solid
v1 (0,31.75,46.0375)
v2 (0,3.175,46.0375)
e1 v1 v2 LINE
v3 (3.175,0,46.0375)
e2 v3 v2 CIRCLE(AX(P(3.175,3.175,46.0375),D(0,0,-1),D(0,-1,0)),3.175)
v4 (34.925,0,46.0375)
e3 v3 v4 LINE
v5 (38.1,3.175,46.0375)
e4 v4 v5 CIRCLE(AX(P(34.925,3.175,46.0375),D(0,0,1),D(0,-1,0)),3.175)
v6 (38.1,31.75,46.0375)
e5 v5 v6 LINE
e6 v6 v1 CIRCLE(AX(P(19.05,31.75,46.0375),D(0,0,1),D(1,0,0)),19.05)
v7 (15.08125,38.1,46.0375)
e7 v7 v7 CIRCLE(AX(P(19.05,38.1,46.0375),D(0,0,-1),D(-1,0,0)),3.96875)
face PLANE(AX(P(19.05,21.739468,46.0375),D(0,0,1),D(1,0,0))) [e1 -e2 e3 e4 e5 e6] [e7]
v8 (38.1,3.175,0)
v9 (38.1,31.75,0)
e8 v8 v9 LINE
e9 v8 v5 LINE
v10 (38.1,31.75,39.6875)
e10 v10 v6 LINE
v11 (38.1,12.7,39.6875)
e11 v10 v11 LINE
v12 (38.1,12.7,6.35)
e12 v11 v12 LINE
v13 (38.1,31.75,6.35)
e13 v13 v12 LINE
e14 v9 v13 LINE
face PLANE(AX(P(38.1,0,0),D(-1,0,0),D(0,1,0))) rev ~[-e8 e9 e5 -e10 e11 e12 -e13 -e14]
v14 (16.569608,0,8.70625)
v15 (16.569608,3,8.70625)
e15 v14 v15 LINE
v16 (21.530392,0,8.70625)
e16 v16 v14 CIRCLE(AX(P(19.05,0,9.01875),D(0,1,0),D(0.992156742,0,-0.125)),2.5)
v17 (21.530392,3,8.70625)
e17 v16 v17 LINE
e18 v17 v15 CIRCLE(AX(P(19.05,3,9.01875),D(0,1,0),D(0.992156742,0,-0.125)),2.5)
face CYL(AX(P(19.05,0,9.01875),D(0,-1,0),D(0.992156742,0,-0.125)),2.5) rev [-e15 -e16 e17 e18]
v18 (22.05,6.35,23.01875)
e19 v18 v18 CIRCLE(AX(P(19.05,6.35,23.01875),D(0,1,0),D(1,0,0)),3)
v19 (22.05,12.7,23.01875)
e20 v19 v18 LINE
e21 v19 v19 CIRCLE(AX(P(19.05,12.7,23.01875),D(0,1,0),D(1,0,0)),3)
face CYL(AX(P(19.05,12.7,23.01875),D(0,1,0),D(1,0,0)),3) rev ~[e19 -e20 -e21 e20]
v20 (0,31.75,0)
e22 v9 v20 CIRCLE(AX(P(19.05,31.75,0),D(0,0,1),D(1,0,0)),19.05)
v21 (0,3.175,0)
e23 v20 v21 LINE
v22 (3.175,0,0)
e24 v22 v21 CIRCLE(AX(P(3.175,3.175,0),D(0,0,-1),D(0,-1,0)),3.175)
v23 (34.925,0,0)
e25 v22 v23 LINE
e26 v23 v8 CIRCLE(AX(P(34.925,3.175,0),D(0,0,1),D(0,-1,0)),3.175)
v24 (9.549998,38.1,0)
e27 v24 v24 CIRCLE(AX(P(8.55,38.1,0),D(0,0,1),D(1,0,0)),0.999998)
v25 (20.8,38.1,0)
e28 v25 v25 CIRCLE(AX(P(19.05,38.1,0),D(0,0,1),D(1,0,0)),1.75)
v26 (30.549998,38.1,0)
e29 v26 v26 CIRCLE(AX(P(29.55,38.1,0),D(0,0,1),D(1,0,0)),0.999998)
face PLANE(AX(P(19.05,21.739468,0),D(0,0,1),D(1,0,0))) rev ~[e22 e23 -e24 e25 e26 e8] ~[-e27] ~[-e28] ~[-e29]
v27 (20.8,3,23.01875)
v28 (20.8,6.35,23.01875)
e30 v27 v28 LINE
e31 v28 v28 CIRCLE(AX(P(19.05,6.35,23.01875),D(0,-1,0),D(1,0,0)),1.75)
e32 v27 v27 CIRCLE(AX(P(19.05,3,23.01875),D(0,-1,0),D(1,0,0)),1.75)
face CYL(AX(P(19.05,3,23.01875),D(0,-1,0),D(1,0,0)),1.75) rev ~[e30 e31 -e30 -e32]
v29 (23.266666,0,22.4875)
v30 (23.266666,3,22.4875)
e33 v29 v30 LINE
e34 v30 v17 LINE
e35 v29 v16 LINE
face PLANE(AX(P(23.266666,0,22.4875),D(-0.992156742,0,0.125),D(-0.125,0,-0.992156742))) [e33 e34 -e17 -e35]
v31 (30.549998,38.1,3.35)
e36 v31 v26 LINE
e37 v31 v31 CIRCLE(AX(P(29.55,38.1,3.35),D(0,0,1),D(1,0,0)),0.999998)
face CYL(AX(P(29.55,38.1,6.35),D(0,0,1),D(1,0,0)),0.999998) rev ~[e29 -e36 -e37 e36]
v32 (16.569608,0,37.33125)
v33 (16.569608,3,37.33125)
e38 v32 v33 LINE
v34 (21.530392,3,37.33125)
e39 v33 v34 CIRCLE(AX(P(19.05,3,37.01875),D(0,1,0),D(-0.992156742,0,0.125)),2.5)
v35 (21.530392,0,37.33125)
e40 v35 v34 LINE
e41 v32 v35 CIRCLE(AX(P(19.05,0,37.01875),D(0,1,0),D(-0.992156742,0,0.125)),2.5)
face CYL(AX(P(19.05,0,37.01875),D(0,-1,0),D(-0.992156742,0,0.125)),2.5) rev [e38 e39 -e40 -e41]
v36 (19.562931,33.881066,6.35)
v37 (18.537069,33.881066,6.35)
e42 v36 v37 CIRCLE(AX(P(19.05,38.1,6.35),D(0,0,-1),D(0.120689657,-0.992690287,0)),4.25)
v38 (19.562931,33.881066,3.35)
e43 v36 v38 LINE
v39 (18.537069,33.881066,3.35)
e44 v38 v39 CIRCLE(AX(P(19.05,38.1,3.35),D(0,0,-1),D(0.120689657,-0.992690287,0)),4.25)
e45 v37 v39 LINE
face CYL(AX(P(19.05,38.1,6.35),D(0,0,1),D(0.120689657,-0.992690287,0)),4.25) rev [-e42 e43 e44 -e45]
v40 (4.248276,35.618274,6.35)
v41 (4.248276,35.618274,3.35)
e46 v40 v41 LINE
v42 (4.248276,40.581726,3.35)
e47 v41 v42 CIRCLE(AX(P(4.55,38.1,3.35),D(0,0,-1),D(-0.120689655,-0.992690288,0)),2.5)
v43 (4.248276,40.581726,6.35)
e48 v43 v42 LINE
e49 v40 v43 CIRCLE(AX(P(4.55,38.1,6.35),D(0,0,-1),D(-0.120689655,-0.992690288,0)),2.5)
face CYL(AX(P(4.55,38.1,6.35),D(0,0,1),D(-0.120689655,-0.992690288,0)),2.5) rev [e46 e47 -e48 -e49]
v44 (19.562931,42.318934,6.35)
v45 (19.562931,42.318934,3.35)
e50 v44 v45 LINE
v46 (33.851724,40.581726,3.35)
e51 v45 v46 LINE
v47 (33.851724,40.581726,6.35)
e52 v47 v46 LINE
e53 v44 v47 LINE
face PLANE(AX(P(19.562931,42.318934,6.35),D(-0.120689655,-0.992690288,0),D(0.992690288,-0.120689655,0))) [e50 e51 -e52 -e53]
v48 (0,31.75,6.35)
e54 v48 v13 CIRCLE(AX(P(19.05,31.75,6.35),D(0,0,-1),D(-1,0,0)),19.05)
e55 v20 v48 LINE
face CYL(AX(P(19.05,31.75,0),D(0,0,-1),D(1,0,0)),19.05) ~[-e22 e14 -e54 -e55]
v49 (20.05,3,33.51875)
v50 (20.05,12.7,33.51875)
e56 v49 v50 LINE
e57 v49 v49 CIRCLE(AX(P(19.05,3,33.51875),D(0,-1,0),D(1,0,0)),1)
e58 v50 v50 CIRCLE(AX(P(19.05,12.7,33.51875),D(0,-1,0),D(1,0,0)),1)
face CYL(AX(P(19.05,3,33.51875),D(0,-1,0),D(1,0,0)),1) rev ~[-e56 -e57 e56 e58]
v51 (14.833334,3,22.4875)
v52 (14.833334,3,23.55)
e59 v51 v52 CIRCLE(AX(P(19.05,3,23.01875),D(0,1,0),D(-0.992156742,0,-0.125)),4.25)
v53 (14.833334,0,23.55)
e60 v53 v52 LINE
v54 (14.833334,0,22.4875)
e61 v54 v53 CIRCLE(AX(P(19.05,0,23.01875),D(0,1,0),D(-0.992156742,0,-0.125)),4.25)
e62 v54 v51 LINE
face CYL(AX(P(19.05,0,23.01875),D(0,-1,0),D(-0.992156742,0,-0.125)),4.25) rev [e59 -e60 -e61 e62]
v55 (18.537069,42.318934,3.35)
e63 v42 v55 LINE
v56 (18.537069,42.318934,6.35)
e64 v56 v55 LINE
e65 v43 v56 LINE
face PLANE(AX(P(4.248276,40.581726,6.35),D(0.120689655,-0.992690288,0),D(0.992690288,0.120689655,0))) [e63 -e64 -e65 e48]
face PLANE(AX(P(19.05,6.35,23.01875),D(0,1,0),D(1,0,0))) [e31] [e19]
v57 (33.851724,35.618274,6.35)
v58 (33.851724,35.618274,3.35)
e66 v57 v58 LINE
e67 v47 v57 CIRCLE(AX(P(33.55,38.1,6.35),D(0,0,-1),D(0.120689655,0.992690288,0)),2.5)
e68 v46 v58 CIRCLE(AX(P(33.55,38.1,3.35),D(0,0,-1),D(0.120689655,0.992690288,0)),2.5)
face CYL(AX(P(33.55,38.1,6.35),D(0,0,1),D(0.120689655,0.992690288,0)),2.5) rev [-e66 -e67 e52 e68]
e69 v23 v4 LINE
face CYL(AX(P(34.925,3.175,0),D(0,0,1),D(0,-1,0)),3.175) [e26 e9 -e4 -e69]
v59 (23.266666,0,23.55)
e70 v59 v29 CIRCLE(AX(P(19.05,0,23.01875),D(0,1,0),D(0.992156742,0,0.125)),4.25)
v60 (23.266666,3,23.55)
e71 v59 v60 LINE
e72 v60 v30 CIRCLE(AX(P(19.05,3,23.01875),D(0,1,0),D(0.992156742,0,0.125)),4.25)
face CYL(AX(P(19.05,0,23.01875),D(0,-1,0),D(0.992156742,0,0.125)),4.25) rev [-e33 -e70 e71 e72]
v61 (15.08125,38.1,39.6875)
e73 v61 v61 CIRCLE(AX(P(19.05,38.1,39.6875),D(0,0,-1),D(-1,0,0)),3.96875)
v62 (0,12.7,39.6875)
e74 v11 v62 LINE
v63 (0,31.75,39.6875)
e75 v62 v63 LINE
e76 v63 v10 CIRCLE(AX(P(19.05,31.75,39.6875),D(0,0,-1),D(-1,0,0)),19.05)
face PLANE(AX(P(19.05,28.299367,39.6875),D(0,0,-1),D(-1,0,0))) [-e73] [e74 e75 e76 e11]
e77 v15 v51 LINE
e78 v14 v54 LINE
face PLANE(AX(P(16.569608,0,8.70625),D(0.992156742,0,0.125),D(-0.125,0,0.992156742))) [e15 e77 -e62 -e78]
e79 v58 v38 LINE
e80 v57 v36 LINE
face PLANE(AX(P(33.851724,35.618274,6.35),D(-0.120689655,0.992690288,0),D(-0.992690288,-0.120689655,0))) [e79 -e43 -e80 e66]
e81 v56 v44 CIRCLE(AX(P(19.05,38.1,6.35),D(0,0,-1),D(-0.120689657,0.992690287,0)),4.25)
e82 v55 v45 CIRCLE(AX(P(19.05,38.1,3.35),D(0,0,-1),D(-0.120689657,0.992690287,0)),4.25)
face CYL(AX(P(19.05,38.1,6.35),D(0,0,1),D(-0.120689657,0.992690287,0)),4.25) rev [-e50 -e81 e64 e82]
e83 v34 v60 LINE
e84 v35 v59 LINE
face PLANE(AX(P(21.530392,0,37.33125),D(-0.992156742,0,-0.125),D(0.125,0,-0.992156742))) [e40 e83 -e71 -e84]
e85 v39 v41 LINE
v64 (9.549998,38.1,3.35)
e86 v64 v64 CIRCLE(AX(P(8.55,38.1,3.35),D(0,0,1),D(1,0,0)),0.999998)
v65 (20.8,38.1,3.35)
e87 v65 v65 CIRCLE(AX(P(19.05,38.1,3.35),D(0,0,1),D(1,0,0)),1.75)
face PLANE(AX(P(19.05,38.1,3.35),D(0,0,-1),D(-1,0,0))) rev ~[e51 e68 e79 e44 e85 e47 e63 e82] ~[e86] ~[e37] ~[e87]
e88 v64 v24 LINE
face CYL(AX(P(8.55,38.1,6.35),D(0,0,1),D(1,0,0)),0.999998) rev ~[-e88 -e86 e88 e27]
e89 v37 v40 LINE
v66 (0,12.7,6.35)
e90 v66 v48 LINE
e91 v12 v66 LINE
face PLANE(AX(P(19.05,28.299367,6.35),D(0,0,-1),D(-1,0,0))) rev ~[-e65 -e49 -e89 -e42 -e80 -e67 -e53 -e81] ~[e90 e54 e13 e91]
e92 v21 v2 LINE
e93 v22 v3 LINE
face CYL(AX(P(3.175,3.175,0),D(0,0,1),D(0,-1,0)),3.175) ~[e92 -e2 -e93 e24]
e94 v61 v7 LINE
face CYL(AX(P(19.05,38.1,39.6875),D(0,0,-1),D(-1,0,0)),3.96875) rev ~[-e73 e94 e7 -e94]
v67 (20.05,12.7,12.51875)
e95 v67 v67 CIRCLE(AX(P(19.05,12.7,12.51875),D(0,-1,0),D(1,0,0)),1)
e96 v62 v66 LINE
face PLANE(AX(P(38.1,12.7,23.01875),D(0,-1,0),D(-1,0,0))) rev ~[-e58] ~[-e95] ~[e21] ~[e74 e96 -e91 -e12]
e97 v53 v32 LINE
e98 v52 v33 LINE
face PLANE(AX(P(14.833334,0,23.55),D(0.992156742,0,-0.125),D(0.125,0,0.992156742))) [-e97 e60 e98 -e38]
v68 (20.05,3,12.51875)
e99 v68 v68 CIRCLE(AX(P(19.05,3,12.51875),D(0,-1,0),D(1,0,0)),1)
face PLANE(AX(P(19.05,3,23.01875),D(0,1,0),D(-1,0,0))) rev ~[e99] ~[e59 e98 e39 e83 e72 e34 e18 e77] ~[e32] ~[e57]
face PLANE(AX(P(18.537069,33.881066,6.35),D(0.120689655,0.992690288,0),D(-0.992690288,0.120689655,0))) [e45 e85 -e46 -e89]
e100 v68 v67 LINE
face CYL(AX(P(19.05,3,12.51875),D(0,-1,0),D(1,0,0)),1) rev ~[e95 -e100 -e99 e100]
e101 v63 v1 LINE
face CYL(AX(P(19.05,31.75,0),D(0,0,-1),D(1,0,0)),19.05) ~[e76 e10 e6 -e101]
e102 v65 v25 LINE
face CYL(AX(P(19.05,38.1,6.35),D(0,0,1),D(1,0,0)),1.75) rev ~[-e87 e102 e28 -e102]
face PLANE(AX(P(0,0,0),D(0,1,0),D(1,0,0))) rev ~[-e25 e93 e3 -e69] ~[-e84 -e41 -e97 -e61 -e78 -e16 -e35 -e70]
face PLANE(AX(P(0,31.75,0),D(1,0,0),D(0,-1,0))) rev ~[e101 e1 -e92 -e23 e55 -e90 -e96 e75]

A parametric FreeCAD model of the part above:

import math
import FreeCAD as App
import Part
import Sketcher

V = App.Vector
Q = App.Units.Quantity


def edges_at(feature, points):
    """Names of the edges that pass closest to the given points."""
    edges = feature.Shape.Edges
    near = lambda p: min(range(len(edges)), key=lambda i: edges[i].distToShape(Part.Vertex(*p))[0])
    return sorted({f"Edge{near(p) + 1}" for p in points})

doc = App.newDocument("Part")
params = doc.addObject("Spreadsheet::Sheet", "Params")
for row, (alias, value) in enumerate([
    ("sketch1_radius", "0.75 in"),
    ("sketch1_height", "1.25 in"),
    ("pad1_length", "1.8125 in"),
    ("fillet_radius", "0.125 in"),
    ("sketch2_radius", "0.75 in"),
    ("sketch2_height", "0.75 in"),
    ("pocket1_length", "1.3125 in"),
    ("pocket2_length", "0.25 in"),
    ("sketch4_diameter", "0.3125 in"),
    ("pocket3_length", "0.25 in"),
    ("pocket4_length", "3 mm"),
    ("pocket5_length", "9.7 mm"),
    ("pocket6_length", "0.25 in"),
    ("pocket7_length", "3 mm"),
], start=1):
    params.set(f"A{row}", alias)
    params.set(f"B{row}", "=" + value)
    params.setAlias(f"B{row}", alias)

body = doc.addObject("PartDesign::Body", "Body")

sketch1 = body.newObject("Sketcher::SketchObject", "Sketch")
sketch1.AttachmentSupport = (doc.getObject("XY_Plane"), [""])
sketch1.MapMode = "FlatFace"
sketch1.addGeometry([
    Part.LineSegment(V(0, 0, 0), V(38, 0, 0)),
    Part.LineSegment(V(38, 0, 0), V(38, 32, 0)),
    Part.ArcOfCircle(Part.Circle(V(19, 32, 0), V(0, 0, 1), 19), math.radians(0), math.radians(180)),
    Part.LineSegment(V(0, 32, 0), V(0, 0, 0)),
], False)
sketch1.addConstraint([
    Sketcher.Constraint("Coincident", 0, 2, 1, 1),
    Sketcher.Constraint("Tangent", 1, 2, 2, 1),
    Sketcher.Constraint("Tangent", 2, 2, 3, 1),
    Sketcher.Constraint("Coincident", 3, 2, 0, 1),
    Sketcher.Constraint("Horizontal", 0),
    Sketcher.Constraint("Vertical", 1),
    Sketcher.Constraint("Vertical", 3),
    Sketcher.Constraint("Coincident", 3, 2, -1, 1),
    Sketcher.Constraint("Radius", 2, Q("0.75 in")),
    Sketcher.Constraint("DistanceY", 1, 1, 1, 2, Q("1.25 in")),
])
sketch1.setExpression("Constraints[8]", "Params.sketch1_radius")
sketch1.setExpression("Constraints[9]", "Params.sketch1_height")
pad1 = body.newObject("PartDesign::Pad", "Pad")
pad1.Profile = sketch1
pad1.setExpression("Length", "Params.pad1_length")
doc.recompute()

fillet = body.newObject("PartDesign::Fillet", "Fillet")
fillet.Base = (pad1, edges_at(pad1, [(38.1, 0, 23.019), (0, 0, 23.019)]))
fillet.setExpression("Radius", "Params.fillet_radius")

sketch2 = body.newObject("Sketcher::SketchObject", "Sketch001")
sketch2.AttachmentSupport = (doc.getObject("XY_Plane"), [""])
sketch2.MapMode = "FlatFace"
sketch2.AttachmentOffset = App.Placement(V(0, 0, 0.90625 * 25.4), App.Rotation())
sketch2.addGeometry([
    Part.LineSegment(V(38, 32, 0), V(38, 13, 0)),
    Part.LineSegment(V(38, 13, 0), V(0, 13, 0)),
    Part.LineSegment(V(0, 13, 0), V(0, 32, 0)),
    Part.ArcOfCircle(Part.Circle(V(19, 32, 0), V(0, 0, 1), 19), math.radians(0), math.radians(180)),
], False)
sketch2.addConstraint([
    Sketcher.Constraint("Coincident", 0, 2, 1, 1),
    Sketcher.Constraint("Coincident", 1, 2, 2, 1),
    Sketcher.Constraint("Tangent", 2, 2, 3, 2),
    Sketcher.Constraint("Tangent", 3, 1, 0, 1),
    Sketcher.Constraint("Vertical", 0),
    Sketcher.Constraint("Horizontal", 1),
    Sketcher.Constraint("Vertical", 2),
    Sketcher.Constraint("PointOnObject", 1, 2, -2),
    Sketcher.Constraint("Radius", 3, Q("0.75 in")),
    Sketcher.Constraint("DistanceY", 0, 2, 0, 1, Q("0.75 in")),
    Sketcher.Constraint("DistanceY", -1, 1, 0, 2, Q("0.5 in")),
])
sketch2.setExpression("Constraints[8]", "Params.sketch2_radius")
sketch2.setExpression("Constraints[9]", "Params.sketch2_height")
pocket1 = body.newObject("PartDesign::Pocket", "Pocket")
pocket1.Profile = sketch2
pocket1.setExpression("Length", "Params.pocket1_length")
pocket1.Midplane = True

sketch3 = body.newObject("Sketcher::SketchObject", "Sketch002")
sketch3.AttachmentSupport = (doc.getObject("XY_Plane"), [""])
sketch3.MapMode = "FlatFace"
sketch3.AttachmentOffset = App.Placement(V(0, 0, 0.25 * 25.4), App.Rotation())
sketch3.addGeometry([
    Part.Circle(V(8.6, 38.1, 0), V(0, 0, 1), 1),
    Part.Circle(V(29.6, 38.1, 0), V(0, 0, 1), 1),
    Part.Circle(V(19.1, 38.1, 0), V(0, 0, 1), 1.8),
], False)
sketch3.addConstraint([
    Sketcher.Constraint("Equal", 0, 1),
    Sketcher.Constraint("Horizontal", 0, 3, 1, 3),
    Sketcher.Constraint("Horizontal", 1, 3, 2, 3),
    Sketcher.Constraint("DistanceY", -1, 1, 0, 3, Q("1.5 in")),
    Sketcher.Constraint("Diameter", 2, 3.5),
    Sketcher.Constraint("DistanceX", -1, 1, 2, 3, Q("0.75 in")),
    Sketcher.Constraint("Diameter", 0, 1.999996),
    Sketcher.Constraint("DistanceX", -1, 1, 0, 3, 8.55),
    Sketcher.Constraint("DistanceX", -1, 1, 1, 3, 29.55),
])
pocket2 = body.newObject("PartDesign::Pocket", "Pocket001")
pocket2.Profile = sketch3
pocket2.setExpression("Length", "Params.pocket2_length")

sketch4 = body.newObject("Sketcher::SketchObject", "Sketch003")
sketch4.AttachmentSupport = (doc.getObject("XY_Plane"), [""])
sketch4.MapMode = "FlatFace"
sketch4.AttachmentOffset = App.Placement(V(0, 0, 1.5625 * 25.4), App.Rotation())
sketch4.addGeometry(Part.Circle(V(19.1, 38.1, 0), V(0, 0, 1), 4), False)
sketch4.addConstraint([
    Sketcher.Constraint("Diameter", 0, Q("0.3125 in")),
    Sketcher.Constraint("DistanceY", -1, 1, 0, 3, Q("1.5 in")),
    Sketcher.Constraint("DistanceX", -1, 1, 0, 3, Q("0.75 in")),
])
sketch4.setExpression("Constraints[0]", "Params.sketch4_diameter")
pocket3 = body.newObject("PartDesign::Pocket", "Pocket002")
pocket3.Profile = sketch4
pocket3.setExpression("Length", "Params.pocket3_length")
pocket3.Reversed = True

sketch5 = body.newObject("Sketcher::SketchObject", "Sketch004")
sketch5.AttachmentSupport = (doc.getObject("XZ_Plane"), [""])
sketch5.MapMode = "FlatFace"
sketch5.addGeometry([
    Part.LineSegment(V(21.5, 8.7, 0), V(23.3, 22.5, 0)),
    Part.ArcOfCircle(Part.Circle(V(19.1, 23, 0), V(0, 0, 1), 4.2), math.radians(-7.18), math.radians(7.18)),
    Part.LineSegment(V(23.3, 23.6, 0), V(21.5, 37.3, 0)),
    Part.ArcOfCircle(Part.Circle(V(19.1, 37, 0), V(0, 0, 1), 2.5), math.radians(7), math.radians(173)),
    Part.LineSegment(V(16.6, 37.3, 0), V(14.8, 23.6, 0)),
    Part.ArcOfCircle(Part.Circle(V(19, 23, 0), V(0, 0, 1), 4.2), math.radians(172.82), math.radians(187.18)),
    Part.LineSegment(V(14.8, 22.5, 0), V(16.6, 8.7, 0)),
    Part.ArcOfCircle(Part.Circle(V(19.1, 9, 0), V(0, 0, 1), 2.5), math.radians(-173), math.radians(-7)),
], False)
sketch5.addConstraint([
    Sketcher.Constraint("Tangent", 0, 2, 1, 1),
    Sketcher.Constraint("Tangent", 1, 2, 2, 1),
    Sketcher.Constraint("Tangent", 2, 2, 3, 1),
    Sketcher.Constraint("Tangent", 3, 2, 4, 1),
    Sketcher.Constraint("Tangent", 4, 2, 5, 1),
    Sketcher.Constraint("Tangent", 5, 2, 6, 1),
    Sketcher.Constraint("Tangent", 6, 2, 7, 1),
    Sketcher.Constraint("Tangent", 7, 2, 0, 1),
    Sketcher.Constraint("Coincident", 5, 3, 1, 3),
    Sketcher.Constraint("Equal", 1, 5),
    Sketcher.Constraint("Equal", 3, 7),
    Sketcher.Constraint("Parallel", 0, 4),
    Sketcher.Constraint("Parallel", 2, 6),
    Sketcher.Constraint("Horizontal", 2, 2, 3, 2),
    Sketcher.Constraint("DistanceX", -1, 1, 1, 3, Q("0.75 in")),
    Sketcher.Constraint("Radius", 1, 4.25),
    Sketcher.Constraint("Radius", 3, 2.5),
    Sketcher.Constraint("DistanceY", -1, 1, 1, 3, Q("0.90625 in")),
    Sketcher.Constraint("DistanceY", -1, 1, 0, 2, 22.4875),
])
pocket4 = body.newObject("PartDesign::Pocket", "Pocket003")
pocket4.Profile = sketch5
pocket4.setExpression("Length", "Params.pocket4_length")

sketch6 = body.newObject("Sketcher::SketchObject", "Sketch005")
sketch6.AttachmentSupport = (doc.getObject("XZ_Plane"), [""])
sketch6.MapMode = "FlatFace"
sketch6.AttachmentOffset = App.Placement(V(0, 0, -3), App.Rotation())
sketch6.addGeometry([
    Part.Circle(V(19.1, 23, 0), V(0, 0, 1), 1.8),
    Part.Circle(V(19.1, 33.5, 0), V(0, 0, 1), 1),
    Part.Circle(V(19.1, 12.5, 0), V(0, 0, 1), 1),
], False)
sketch6.addConstraint([
    Sketcher.Constraint("Equal", 1, 2),
    Sketcher.Constraint("Vertical", 0, 3, 1, 3),
    Sketcher.Constraint("Vertical", 1, 3, 2, 3),
    Sketcher.Constraint("Diameter", 0, 3.5),
    Sketcher.Constraint("Diameter", 1, 2.0),
    Sketcher.Constraint("DistanceX", -1, 1, 0, 3, Q("0.75 in")),
    Sketcher.Constraint("DistanceY", -1, 1, 0, 3, Q("0.90625 in")),
    Sketcher.Constraint("DistanceY", 0, 3, 1, 3, 10.5),
    Sketcher.Constraint("DistanceY", 2, 3, 0, 3, 10.5),
])
pocket5 = body.newObject("PartDesign::Pocket", "Pocket004")
pocket5.Profile = sketch6
pocket5.setExpression("Length", "Params.pocket5_length")

sketch7 = body.newObject("Sketcher::SketchObject", "Sketch006")
sketch7.AttachmentSupport = (doc.getObject("XZ_Plane"), [""])
sketch7.MapMode = "FlatFace"
sketch7.AttachmentOffset = App.Placement(V(0, 0, -0.5 * 25.4), App.Rotation())
sketch7.addGeometry(Part.Circle(V(19.1, 23, 0), V(0, 0, 1), 3), False)
sketch7.addConstraint([
    Sketcher.Constraint("Diameter", 0, 6.0),
    Sketcher.Constraint("DistanceX", -1, 1, 0, 3, Q("0.75 in")),
    Sketcher.Constraint("DistanceY", -1, 1, 0, 3, Q("0.90625 in")),
])
pocket6 = body.newObject("PartDesign::Pocket", "Pocket005")
pocket6.Profile = sketch7
pocket6.setExpression("Length", "Params.pocket6_length")
pocket6.Reversed = True

sketch8 = body.newObject("Sketcher::SketchObject", "Sketch007")
sketch8.AttachmentSupport = (doc.getObject("XY_Plane"), [""])
sketch8.MapMode = "FlatFace"
sketch8.AttachmentOffset = App.Placement(V(0, 0, 0.25 * 25.4), App.Rotation())
sketch8.addGeometry([
    Part.LineSegment(V(18.5, 42.3, 0), V(4.2, 40.6, 0)),
    Part.ArcOfCircle(Part.Circle(V(4.5, 38.1, 0), V(0, 0, 1), 2.5), math.radians(97), math.radians(263)),
    Part.LineSegment(V(4.2, 35.6, 0), V(18.5, 33.9, 0)),
    Part.ArcOfCircle(Part.Circle(V(19.1, 38.1, 0), V(0, 0, 1), 4.2), math.radians(-96.93), math.radians(-83.07)),
    Part.LineSegment(V(19.6, 33.9, 0), V(33.9, 35.6, 0)),
    Part.ArcOfCircle(Part.Circle(V(33.5, 38.1, 0), V(0, 0, 1), 2.5), math.radians(-83), math.radians(83)),
    Part.LineSegment(V(33.9, 40.6, 0), V(19.6, 42.3, 0)),
    Part.ArcOfCircle(Part.Circle(V(19.1, 38.1, 0), V(0, 0, 1), 4.2), math.radians(83.07), math.radians(96.93)),
    Part.Circle(V(29.6, 38.1, 0), V(0, 0, 1), 1),
    Part.Circle(V(19.1, 38.1, 0), V(0, 0, 1), 1.8),
    Part.Circle(V(8.6, 38.1, 0), V(0, 0, 1), 1),
], False)
sketch8.addConstraint([
    Sketcher.Constraint("Tangent", 0, 2, 1, 1),
    Sketcher.Constraint("Tangent", 1, 2, 2, 1),
    Sketcher.Constraint("Tangent", 2, 2, 3, 1),
    Sketcher.Constraint("Tangent", 3, 2, 4, 1),
    Sketcher.Constraint("Tangent", 4, 2, 5, 1),
    Sketcher.Constraint("Tangent", 5, 2, 6, 1),
    Sketcher.Constraint("Tangent", 6, 2, 7, 1),
    Sketcher.Constraint("Tangent", 7, 2, 0, 1),
    Sketcher.Constraint("Coincident", 7, 3, 3, 3),
    Sketcher.Constraint("Coincident", 9, 3, 3, 3),
    Sketcher.Constraint("Equal", 1, 5),
    Sketcher.Constraint("Equal", 3, 7),
    Sketcher.Constraint("Equal", 8, 10),
    Sketcher.Constraint("Parallel", 0, 4),
    Sketcher.Constraint("Parallel", 2, 6),
    Sketcher.Constraint("Horizontal", 1, 3, 3, 3),
    Sketcher.Constraint("Horizontal", 7, 3, 8, 3),
    Sketcher.Constraint("Horizontal", 9, 3, 10, 3),
    Sketcher.Constraint("DistanceY", -1, 1, 1, 3, Q("1.5 in")),
    Sketcher.Constraint("Diameter", 9, 3.5),
    Sketcher.Constraint("DistanceX", -1, 1, 3, 3, Q("0.75 in")),
    Sketcher.Constraint("Radius", 1, 2.5),
    Sketcher.Constraint("Radius", 3, 4.25),
    Sketcher.Constraint("Diameter", 8, 1.999996),
    Sketcher.Constraint("DistanceX", -1, 1, 1, 3, 4.55),
    Sketcher.Constraint("DistanceX", -1, 1, 8, 3, 29.55),
    Sketcher.Constraint("DistanceX", -1, 1, 10, 3, 8.55),
])
pocket7 = body.newObject("PartDesign::Pocket", "Pocket006")
pocket7.Profile = sketch8
pocket7.setExpression("Length", "Params.pocket7_length")

doc.recompute()
